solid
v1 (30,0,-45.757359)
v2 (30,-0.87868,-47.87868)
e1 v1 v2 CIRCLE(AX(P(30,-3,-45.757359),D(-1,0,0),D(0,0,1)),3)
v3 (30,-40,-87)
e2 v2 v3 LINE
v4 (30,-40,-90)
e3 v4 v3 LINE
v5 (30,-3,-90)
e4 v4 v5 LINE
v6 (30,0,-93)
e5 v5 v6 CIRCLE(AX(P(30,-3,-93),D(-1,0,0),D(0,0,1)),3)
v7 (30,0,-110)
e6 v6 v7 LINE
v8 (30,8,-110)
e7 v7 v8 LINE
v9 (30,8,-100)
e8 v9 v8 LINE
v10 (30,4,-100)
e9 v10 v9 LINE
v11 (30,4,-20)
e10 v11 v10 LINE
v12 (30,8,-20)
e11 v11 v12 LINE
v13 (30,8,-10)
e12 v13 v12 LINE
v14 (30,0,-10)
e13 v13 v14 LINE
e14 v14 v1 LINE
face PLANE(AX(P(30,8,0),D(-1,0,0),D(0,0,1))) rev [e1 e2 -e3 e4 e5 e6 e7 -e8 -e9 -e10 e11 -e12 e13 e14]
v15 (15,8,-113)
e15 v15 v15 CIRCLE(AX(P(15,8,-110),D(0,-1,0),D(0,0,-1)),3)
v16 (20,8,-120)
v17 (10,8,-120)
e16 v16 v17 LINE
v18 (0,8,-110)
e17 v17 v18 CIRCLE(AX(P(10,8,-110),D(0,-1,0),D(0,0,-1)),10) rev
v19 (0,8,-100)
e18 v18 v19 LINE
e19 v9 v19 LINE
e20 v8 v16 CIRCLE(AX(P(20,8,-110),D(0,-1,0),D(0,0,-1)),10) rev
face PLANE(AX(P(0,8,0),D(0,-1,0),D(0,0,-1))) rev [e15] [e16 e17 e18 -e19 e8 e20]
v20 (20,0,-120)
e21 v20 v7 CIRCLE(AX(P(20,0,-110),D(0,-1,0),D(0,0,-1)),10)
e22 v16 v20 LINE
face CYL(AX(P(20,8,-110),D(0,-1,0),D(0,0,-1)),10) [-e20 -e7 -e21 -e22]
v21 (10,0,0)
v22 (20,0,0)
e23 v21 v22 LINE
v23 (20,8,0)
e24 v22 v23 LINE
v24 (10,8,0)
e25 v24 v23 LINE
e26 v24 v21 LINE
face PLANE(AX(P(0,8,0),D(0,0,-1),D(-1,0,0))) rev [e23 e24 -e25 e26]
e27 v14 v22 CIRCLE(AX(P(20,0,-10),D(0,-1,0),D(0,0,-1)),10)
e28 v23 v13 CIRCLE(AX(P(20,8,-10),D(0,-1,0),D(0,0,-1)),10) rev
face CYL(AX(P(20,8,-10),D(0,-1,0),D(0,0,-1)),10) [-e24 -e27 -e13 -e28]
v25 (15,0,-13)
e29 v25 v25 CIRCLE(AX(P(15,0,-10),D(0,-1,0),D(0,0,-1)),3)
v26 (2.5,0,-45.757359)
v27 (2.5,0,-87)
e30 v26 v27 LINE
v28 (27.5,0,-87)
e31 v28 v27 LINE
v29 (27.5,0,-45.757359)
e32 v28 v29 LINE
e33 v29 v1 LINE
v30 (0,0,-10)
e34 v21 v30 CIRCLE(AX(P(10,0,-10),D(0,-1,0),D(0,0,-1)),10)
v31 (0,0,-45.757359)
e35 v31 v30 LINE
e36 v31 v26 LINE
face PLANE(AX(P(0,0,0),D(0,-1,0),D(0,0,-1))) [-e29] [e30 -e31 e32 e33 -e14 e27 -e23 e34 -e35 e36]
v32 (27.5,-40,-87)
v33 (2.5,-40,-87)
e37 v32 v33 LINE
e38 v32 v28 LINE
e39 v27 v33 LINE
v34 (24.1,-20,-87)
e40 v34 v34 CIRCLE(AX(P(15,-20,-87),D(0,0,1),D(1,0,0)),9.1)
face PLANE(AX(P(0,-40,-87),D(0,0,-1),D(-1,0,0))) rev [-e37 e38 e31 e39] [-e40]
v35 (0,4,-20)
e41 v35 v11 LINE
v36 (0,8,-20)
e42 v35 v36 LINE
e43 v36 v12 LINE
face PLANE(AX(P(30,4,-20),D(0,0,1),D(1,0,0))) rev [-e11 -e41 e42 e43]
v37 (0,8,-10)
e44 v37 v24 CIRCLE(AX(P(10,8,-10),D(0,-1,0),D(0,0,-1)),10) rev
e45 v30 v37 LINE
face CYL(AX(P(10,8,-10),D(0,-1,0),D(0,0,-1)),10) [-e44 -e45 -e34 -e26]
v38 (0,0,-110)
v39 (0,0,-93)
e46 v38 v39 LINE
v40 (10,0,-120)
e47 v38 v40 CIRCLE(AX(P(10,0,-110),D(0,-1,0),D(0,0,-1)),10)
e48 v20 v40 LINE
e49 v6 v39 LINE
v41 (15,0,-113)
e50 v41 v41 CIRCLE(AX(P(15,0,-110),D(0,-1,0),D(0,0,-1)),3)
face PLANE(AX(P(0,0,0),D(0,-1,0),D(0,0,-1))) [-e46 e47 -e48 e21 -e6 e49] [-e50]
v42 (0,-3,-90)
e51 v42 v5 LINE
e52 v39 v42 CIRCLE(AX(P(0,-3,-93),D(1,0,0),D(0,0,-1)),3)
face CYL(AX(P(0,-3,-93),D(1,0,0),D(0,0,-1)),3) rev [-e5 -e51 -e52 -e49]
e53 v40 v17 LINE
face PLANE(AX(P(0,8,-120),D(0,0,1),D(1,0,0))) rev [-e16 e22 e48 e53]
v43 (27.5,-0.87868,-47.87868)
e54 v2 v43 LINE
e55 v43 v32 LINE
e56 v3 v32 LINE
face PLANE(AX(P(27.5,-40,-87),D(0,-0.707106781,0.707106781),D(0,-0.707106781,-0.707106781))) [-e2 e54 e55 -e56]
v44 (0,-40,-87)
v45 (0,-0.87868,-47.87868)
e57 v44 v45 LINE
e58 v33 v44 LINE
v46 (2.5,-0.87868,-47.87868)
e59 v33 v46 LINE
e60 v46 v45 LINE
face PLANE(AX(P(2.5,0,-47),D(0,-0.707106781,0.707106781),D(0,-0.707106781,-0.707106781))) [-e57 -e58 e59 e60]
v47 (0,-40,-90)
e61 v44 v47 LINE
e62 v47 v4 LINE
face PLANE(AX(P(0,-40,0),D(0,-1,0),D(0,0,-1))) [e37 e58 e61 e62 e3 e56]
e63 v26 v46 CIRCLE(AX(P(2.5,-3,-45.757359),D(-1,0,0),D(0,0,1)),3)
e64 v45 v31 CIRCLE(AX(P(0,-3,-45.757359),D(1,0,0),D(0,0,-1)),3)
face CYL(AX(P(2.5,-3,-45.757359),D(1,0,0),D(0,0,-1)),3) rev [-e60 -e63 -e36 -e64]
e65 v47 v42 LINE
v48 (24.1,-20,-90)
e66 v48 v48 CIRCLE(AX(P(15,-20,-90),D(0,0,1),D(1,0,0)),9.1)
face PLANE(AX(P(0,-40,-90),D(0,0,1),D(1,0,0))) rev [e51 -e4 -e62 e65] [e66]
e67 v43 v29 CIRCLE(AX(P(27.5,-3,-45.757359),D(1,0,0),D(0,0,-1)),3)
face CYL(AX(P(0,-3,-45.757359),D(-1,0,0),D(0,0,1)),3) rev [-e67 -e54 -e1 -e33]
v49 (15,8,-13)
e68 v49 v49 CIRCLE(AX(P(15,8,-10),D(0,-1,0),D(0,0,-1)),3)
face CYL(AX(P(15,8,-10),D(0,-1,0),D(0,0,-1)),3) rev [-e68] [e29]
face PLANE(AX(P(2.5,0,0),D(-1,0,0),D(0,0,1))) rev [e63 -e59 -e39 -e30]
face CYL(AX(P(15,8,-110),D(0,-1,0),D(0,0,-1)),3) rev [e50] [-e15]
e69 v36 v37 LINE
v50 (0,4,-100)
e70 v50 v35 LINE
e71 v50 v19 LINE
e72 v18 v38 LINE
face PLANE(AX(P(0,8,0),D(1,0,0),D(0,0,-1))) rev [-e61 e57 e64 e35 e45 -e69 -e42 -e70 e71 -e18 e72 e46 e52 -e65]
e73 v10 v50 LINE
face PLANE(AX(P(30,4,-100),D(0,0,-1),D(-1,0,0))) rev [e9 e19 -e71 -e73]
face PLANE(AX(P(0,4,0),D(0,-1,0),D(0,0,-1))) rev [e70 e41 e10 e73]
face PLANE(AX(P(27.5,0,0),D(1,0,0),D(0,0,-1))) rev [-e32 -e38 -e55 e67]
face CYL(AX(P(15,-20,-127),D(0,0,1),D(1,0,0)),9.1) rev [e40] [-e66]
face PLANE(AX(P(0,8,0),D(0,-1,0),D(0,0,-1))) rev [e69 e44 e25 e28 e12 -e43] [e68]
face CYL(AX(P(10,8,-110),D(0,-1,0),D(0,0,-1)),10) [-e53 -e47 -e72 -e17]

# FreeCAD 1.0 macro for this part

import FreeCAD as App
import Part
import Sketcher
Q = App.Units.Quantity


def edges_at(feature, points):
    """Names of the edges that pass closest to the given points."""
    edges = feature.Shape.Edges
    near = lambda p: min(range(len(edges)), key=lambda i: edges[i].distToShape(Part.Vertex(*p))[0])
    return sorted({f"Edge{near(p) + 1}" for p in points})


def add_polygon(sketch, points):
    """Adds a closed chain of lines whose ends are joined by coincident constraints."""
    first, n = sketch.GeometryCount, len(points)
    for a, b in zip(points, points[1:] + points[:1]):
        sketch.addGeometry(Part.LineSegment(App.Vector(*a, 0), App.Vector(*b, 0)), False)
    for i in range(n):
        sketch.addConstraint(Sketcher.Constraint("Coincident", first + i, 2, first + (i + 1) % n, 1))

doc = App.newDocument("Part")
params = doc.addObject("Spreadsheet::Sheet", "Params")
for row, (alias, value) in enumerate([
    ("sketch1_width", "30 mm"),
    ("sketch1_height", "120 mm"),
    ("pad1_length", "8 mm"),
    ("sketch2_width", "30 mm"),
    ("sketch2_height", "80 mm"),
    ("pocket1_length", "4 mm"),
    ("sketch3_width", "30 mm"),
    ("sketch3_height", "3 mm"),
    ("pad2_length", "40 mm"),
    ("sketch4_diameter", "18.2 mm"),
    ("pocket2_length", "40 mm"),
    ("sketch5_width", "40 mm"),
    ("pad3_length", "2.5 mm"),
    ("sketch6_width", "40 mm"),
    ("pad4_length", "2.5 mm"),
    ("sketch7_diameter", "6 mm"),
    ("fillet_radius", "10 mm"),
    ("fillet2_radius", "3 mm"),
    ("fillet3_radius", "3 mm"),
], start=1):
    params.set(f"A{row}", alias)
    params.set(f"B{row}", "=" + value)
    params.setAlias(f"B{row}", alias)

body = doc.addObject("PartDesign::Body", "Body")

sketch1 = body.newObject("Sketcher::SketchObject", "Sketch")
sketch1.AttachmentSupport = (doc.getObject("XZ_Plane"), [""])
sketch1.MapMode = "FlatFace"
add_polygon(sketch1, [(0, -120), (0, 0), (30, 0), (30, -120)])
sketch1.addConstraint(Sketcher.Constraint("Vertical", 0))
sketch1.addConstraint(Sketcher.Constraint("Horizontal", 1))
sketch1.addConstraint(Sketcher.Constraint("Vertical", 2))
sketch1.addConstraint(Sketcher.Constraint("Horizontal", 3))
sketch1.addConstraint(Sketcher.Constraint("Coincident", 0, 2, -1, 1))
sketch1.addConstraint(Sketcher.Constraint("DistanceX", 1, 1, 1, 2, Q("30 mm")))
sketch1.addConstraint(Sketcher.Constraint("DistanceY", 0, 1, 0, 2, Q("120 mm")))
sketch1.setExpression("Constraints[9]", "Params.sketch1_width")
sketch1.setExpression("Constraints[10]", "Params.sketch1_height")
pad1 = body.newObject("PartDesign::Pad", "Pad")
pad1.Profile = sketch1
pad1.setExpression("Length", "Params.pad1_length")
pad1.Reversed = True

sketch2 = body.newObject("Sketcher::SketchObject", "Sketch001")
sketch2.AttachmentSupport = (doc.getObject("XZ_Plane"), [""])
sketch2.MapMode = "FlatFace"
sketch2.AttachmentOffset = App.Placement(App.Vector(0, 0, -8), App.Rotation())
add_polygon(sketch2, [(0, -100), (0, -20), (30, -20), (30, -100)])
sketch2.addConstraint(Sketcher.Constraint("Vertical", 0))
sketch2.addConstraint(Sketcher.Constraint("Horizontal", 1))
sketch2.addConstraint(Sketcher.Constraint("Vertical", 2))
sketch2.addConstraint(Sketcher.Constraint("Horizontal", 3))
sketch2.addConstraint(Sketcher.Constraint("PointOnObject", 0, 2, -2))
sketch2.addConstraint(Sketcher.Constraint("DistanceX", 1, 1, 1, 2, Q("30 mm")))
sketch2.addConstraint(Sketcher.Constraint("DistanceY", 0, 1, 0, 2, Q("80 mm")))
sketch2.addConstraint(Sketcher.Constraint("DistanceY", 0, 2, -1, 1, Q("20 mm")))
sketch2.setExpression("Constraints[9]", "Params.sketch2_width")
sketch2.setExpression("Constraints[10]", "Params.sketch2_height")
pocket1 = body.newObject("PartDesign::Pocket", "Pocket")
pocket1.Profile = sketch2
pocket1.setExpression("Length", "Params.pocket1_length")
pocket1.Reversed = True

sketch3 = body.newObject("Sketcher::SketchObject", "Sketch002")
sketch3.AttachmentSupport = (doc.getObject("XZ_Plane"), [""])
sketch3.MapMode = "FlatFace"
add_polygon(sketch3, [(0, -87), (0, -90), (30, -90), (30, -87)])
sketch3.addConstraint(Sketcher.Constraint("Vertical", 0))
sketch3.addConstraint(Sketcher.Constraint("Horizontal", 1))
sketch3.addConstraint(Sketcher.Constraint("Vertical", 2))
sketch3.addConstraint(Sketcher.Constraint("Horizontal", 3))
sketch3.addConstraint(Sketcher.Constraint("PointOnObject", 0, 2, -2))
sketch3.addConstraint(Sketcher.Constraint("DistanceX", 1, 1, 1, 2, Q("30 mm")))
sketch3.addConstraint(Sketcher.Constraint("DistanceY", 0, 2, 0, 1, Q("3 mm")))
sketch3.addConstraint(Sketcher.Constraint("DistanceY", 0, 2, -1, 1, Q("90 mm")))
sketch3.setExpression("Constraints[9]", "Params.sketch3_width")
sketch3.setExpression("Constraints[10]", "Params.sketch3_height")
pad2 = body.newObject("PartDesign::Pad", "Pad001")
pad2.Profile = sketch3
pad2.setExpression("Length", "Params.pad2_length")

sketch4 = body.newObject("Sketcher::SketchObject", "Sketch003")
sketch4.AttachmentSupport = (doc.getObject("XY_Plane"), [""])
sketch4.MapMode = "FlatFace"
sketch4.AttachmentOffset = App.Placement(App.Vector(0, 0, -87), App.Rotation())
sketch4.addGeometry(Part.Circle(App.Vector(15, -20, 0), App.Vector(0, 0, 1), 9.1), False)
sketch4.addConstraint(Sketcher.Constraint("Diameter", 0, Q("18.2 mm")))
sketch4.addConstraint(Sketcher.Constraint("DistanceX", -1, 1, 0, 3, Q("15 mm")))
sketch4.addConstraint(Sketcher.Constraint("DistanceY", 0, 3, -1, 1, Q("20 mm")))
sketch4.setExpression("Constraints[0]", "Params.sketch4_diameter")
pocket2 = body.newObject("PartDesign::Pocket", "Pocket001")
pocket2.Profile = sketch4
pocket2.setExpression("Length", "Params.pocket2_length")

sketch5 = body.newObject("Sketcher::SketchObject", "Sketch004")
sketch5.AttachmentSupport = (doc.getObject("YZ_Plane"), [""])
sketch5.MapMode = "FlatFace"
sketch5.AttachmentOffset = App.Placement(App.Vector(0, 0, 30), App.Rotation())
add_polygon(sketch5, [(0, -47), (-40, -87), (0, -87)])
sketch5.addConstraint(Sketcher.Constraint("Horizontal", 1))
sketch5.addConstraint(Sketcher.Constraint("Vertical", 2))
sketch5.addConstraint(Sketcher.Constraint("PointOnObject", 1, 2, -2))
sketch5.addConstraint(Sketcher.Constraint("Equal", 1, 2))
sketch5.addConstraint(Sketcher.Constraint("DistanceX", 1, 1, 1, 2, Q("40 mm")))
sketch5.addConstraint(Sketcher.Constraint("DistanceY", 0, 2, -1, 1, Q("87 mm")))
sketch5.setExpression("Constraints[7]", "Params.sketch5_width")
pad3 = body.newObject("PartDesign::Pad", "Pad002")
pad3.Profile = sketch5
pad3.setExpression("Length", "Params.pad3_length")
pad3.Reversed = True

sketch6 = body.newObject("Sketcher::SketchObject", "Sketch005")
sketch6.AttachmentSupport = (doc.getObject("YZ_Plane"), [""])
sketch6.MapMode = "FlatFace"
add_polygon(sketch6, [(-40, -87), (0, -47), (0, -87)])
sketch6.addConstraint(Sketcher.Constraint("Vertical", 1))
sketch6.addConstraint(Sketcher.Constraint("Horizontal", 2))
sketch6.addConstraint(Sketcher.Constraint("PointOnObject", 0, 2, -2))
sketch6.addConstraint(Sketcher.Constraint("Equal", 2, 1))
sketch6.addConstraint(Sketcher.Constraint("DistanceX", 2, 2, 2, 1, Q("40 mm")))
sketch6.addConstraint(Sketcher.Constraint("DistanceY", 0, 2, -1, 1, Q("47 mm")))
sketch6.setExpression("Constraints[7]", "Params.sketch6_width")
pad4 = body.newObject("PartDesign::Pad", "Pad003")
pad4.Profile = sketch6
pad4.setExpression("Length", "Params.pad4_length")

sketch7 = body.newObject("Sketcher::SketchObject", "Sketch006")
sketch7.AttachmentSupport = (doc.getObject("XZ_Plane"), [""])
sketch7.MapMode = "FlatFace"
sketch7.addGeometry(Part.Circle(App.Vector(15, -10, 0), App.Vector(0, 0, 1), 3), False)
sketch7.addGeometry(Part.Circle(App.Vector(15, -110, 0), App.Vector(0, 0, 1), 3), False)
sketch7.addConstraint(Sketcher.Constraint("Equal", 0, 1))
sketch7.addConstraint(Sketcher.Constraint("Vertical", 0, 3, 1, 3))
sketch7.addConstraint(Sketcher.Constraint("Diameter", 0, Q("6 mm")))
sketch7.addConstraint(Sketcher.Constraint("DistanceX", -1, 1, 0, 3, Q("15 mm")))
sketch7.addConstraint(Sketcher.Constraint("DistanceY", 0, 3, -1, 1, Q("10 mm")))
sketch7.addConstraint(Sketcher.Constraint("DistanceY", 1, 3, -1, 1, Q("110 mm")))
sketch7.setExpression("Constraints[2]", "Params.sketch7_diameter")
pocket3 = body.newObject("PartDesign::Pocket", "Pocket002")
pocket3.Profile = sketch7
pocket3.Type = "ThroughAll"
doc.recompute()

fillet = body.newObject("PartDesign::Fillet", "Fillet")
fillet.Base = (pocket3, edges_at(pocket3, [
    (0, 4, -120),
    (30, 4, -120),
    (30, 4, 0),
    (0, 4, 0),
]))
fillet.setExpression("Radius", "Params.fillet_radius")
doc.recompute()

fillet2 = body.newObject("PartDesign::Fillet", "Fillet001")
fillet2.Base = (fillet, edges_at(fillet, [(15, 0, -90)]))
fillet2.setExpression("Radius", "Params.fillet2_radius")
doc.recompute()

fillet3 = body.newObject("PartDesign::Fillet", "Fillet002")
fillet3.Base = (fillet2, edges_at(fillet2, [(28.75, 0, -47), (1.25, 0, -47)]))
fillet3.setExpression("Radius", "Params.fillet3_radius")

doc.recompute()
